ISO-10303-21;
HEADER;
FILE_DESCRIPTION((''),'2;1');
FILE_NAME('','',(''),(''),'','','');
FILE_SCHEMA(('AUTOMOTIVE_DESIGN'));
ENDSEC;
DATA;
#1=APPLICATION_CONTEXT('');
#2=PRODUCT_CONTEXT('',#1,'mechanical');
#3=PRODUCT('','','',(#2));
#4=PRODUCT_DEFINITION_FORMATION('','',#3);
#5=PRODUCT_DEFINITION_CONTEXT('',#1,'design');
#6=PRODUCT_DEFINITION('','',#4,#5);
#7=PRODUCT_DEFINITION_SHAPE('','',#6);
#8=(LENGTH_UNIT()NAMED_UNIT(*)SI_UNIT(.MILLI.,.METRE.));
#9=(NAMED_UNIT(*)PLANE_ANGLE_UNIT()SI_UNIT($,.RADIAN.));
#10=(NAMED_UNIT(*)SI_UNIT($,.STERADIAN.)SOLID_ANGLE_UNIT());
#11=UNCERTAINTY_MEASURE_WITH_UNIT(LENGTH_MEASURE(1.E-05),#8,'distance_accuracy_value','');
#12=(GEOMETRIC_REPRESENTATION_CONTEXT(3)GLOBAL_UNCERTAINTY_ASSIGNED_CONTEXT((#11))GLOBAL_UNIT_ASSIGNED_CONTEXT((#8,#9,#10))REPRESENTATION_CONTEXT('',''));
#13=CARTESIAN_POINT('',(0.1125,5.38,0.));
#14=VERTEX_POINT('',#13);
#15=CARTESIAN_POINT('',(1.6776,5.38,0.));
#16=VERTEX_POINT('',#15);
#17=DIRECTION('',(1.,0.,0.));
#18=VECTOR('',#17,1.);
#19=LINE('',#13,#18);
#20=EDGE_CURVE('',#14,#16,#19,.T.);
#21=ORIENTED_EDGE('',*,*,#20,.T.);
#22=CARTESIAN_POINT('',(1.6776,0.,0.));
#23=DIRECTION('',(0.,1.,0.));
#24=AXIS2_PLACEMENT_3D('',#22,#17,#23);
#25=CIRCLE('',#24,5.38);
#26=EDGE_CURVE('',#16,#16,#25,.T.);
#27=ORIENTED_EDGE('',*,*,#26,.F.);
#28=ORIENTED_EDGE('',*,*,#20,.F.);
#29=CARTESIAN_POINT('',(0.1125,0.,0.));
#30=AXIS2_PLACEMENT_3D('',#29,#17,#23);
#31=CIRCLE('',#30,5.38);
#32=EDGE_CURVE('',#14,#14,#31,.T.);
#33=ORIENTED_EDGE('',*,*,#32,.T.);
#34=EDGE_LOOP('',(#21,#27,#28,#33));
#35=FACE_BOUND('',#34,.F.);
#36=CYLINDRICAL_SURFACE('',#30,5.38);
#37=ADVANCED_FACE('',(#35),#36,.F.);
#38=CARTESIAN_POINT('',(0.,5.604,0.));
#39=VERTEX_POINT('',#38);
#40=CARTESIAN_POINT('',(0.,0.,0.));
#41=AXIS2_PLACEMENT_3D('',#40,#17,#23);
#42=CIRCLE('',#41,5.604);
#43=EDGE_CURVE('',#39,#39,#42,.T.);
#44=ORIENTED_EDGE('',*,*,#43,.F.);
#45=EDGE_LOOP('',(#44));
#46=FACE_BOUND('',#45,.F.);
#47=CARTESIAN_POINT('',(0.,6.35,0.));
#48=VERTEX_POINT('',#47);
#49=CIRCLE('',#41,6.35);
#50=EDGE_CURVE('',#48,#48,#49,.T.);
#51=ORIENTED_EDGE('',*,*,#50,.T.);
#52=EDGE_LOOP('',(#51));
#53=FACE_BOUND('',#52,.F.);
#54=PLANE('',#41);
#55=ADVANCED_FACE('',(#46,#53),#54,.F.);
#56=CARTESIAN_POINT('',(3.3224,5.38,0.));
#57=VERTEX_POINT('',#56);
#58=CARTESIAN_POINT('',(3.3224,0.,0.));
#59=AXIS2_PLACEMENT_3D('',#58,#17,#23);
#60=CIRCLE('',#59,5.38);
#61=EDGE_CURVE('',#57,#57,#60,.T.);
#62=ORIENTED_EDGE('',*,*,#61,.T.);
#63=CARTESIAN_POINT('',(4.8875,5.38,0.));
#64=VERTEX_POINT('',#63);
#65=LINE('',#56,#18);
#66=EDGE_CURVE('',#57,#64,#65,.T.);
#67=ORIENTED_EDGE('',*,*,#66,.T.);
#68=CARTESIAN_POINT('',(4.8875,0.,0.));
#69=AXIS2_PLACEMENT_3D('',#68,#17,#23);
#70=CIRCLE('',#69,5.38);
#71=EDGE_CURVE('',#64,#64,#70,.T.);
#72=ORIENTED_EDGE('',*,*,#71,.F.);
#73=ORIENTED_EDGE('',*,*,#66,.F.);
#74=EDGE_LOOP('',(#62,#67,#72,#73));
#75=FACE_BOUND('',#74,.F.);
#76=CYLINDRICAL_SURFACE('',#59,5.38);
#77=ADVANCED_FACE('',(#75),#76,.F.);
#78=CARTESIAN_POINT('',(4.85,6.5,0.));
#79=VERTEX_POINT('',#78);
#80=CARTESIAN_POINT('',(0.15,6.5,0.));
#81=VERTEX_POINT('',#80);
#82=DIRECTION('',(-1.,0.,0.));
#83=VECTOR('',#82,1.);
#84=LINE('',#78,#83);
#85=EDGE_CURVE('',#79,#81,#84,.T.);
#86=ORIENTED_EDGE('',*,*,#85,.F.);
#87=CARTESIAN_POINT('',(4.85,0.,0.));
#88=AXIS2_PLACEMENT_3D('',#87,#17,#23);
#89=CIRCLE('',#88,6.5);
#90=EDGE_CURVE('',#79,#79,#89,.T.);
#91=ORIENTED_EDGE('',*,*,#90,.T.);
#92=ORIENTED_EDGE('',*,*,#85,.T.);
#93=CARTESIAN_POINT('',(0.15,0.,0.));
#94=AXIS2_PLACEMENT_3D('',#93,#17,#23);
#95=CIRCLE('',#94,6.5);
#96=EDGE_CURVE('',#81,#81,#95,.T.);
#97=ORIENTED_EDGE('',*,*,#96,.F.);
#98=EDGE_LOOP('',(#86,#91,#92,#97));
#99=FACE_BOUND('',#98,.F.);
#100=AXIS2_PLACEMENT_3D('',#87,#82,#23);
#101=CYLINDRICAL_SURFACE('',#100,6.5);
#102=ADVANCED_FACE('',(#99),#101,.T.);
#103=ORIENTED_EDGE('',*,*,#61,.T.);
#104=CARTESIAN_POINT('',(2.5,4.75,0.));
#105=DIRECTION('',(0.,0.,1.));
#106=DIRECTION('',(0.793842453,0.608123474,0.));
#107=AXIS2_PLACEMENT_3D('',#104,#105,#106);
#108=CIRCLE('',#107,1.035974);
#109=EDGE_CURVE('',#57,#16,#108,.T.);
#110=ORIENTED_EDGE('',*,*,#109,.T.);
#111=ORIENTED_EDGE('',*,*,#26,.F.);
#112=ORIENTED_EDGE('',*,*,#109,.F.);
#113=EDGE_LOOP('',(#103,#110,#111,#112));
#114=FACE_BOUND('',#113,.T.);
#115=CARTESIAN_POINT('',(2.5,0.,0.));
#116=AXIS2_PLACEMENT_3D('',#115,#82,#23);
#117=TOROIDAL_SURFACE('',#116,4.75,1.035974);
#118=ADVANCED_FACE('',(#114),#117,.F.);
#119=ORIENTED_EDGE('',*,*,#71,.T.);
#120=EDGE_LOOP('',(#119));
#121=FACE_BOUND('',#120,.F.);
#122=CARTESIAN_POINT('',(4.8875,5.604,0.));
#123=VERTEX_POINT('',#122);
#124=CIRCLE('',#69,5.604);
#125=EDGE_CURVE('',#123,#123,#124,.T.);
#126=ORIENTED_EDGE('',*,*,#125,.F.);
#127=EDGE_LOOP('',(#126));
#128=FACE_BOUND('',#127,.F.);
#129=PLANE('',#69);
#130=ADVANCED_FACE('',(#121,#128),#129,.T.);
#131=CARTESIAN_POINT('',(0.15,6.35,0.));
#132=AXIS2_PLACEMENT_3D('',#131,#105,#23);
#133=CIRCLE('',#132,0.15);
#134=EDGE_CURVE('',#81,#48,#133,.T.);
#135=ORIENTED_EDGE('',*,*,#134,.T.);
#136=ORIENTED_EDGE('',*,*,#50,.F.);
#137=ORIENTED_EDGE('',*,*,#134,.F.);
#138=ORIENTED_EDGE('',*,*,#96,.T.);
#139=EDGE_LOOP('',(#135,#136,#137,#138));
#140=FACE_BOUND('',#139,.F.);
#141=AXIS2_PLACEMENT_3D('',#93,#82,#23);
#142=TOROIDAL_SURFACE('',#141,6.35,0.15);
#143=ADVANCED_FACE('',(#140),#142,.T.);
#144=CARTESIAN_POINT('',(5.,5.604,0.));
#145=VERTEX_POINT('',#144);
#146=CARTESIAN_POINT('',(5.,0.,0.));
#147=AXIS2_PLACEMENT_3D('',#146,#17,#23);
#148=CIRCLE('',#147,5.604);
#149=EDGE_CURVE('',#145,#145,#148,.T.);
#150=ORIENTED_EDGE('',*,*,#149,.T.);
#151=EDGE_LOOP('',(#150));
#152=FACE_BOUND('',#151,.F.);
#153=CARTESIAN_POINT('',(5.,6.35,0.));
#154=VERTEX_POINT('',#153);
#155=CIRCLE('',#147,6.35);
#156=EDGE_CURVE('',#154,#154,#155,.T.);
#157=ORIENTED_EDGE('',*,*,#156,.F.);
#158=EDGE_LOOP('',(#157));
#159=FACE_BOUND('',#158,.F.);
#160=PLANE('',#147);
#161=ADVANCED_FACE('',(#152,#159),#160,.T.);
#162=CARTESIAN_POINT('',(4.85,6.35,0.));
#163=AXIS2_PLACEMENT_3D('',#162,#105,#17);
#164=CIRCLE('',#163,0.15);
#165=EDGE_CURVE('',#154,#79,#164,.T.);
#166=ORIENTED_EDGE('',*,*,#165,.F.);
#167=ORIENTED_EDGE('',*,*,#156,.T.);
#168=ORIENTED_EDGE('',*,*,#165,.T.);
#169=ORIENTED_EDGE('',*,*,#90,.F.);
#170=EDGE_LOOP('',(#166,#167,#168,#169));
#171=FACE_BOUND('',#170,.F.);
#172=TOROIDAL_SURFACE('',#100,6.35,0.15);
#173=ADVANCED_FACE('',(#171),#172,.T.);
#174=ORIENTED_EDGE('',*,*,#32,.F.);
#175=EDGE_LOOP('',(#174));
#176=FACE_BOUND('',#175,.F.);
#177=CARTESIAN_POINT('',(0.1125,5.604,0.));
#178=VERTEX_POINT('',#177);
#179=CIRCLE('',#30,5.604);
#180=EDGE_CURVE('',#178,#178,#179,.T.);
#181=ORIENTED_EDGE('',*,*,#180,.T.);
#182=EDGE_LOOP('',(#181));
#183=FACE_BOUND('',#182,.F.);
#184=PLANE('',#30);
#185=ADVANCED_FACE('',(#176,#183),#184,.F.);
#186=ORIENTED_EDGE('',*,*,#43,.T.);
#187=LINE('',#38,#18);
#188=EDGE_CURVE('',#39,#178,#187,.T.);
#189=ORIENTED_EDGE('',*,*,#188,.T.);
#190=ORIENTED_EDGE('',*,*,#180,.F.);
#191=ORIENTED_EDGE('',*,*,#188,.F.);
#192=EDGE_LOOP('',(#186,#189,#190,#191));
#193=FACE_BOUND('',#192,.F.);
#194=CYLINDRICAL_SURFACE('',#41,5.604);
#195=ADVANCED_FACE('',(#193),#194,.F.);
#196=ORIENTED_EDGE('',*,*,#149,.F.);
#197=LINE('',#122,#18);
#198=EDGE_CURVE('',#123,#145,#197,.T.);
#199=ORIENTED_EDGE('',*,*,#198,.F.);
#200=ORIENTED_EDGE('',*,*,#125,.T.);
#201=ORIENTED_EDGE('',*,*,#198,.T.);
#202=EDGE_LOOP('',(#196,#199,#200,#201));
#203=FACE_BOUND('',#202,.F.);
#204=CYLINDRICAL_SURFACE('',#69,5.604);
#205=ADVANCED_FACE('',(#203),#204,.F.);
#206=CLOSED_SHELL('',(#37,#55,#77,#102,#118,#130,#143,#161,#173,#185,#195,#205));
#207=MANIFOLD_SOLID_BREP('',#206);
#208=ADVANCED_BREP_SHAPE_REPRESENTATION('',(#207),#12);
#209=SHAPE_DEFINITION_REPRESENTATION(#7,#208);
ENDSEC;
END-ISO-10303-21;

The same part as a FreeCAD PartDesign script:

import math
import FreeCAD as App
import Part
import Sketcher
from FreeCAD import Vector
Q = App.Units.Quantity

doc = App.newDocument("Part")
body = doc.addObject("PartDesign::Body", "Body")

# Sketch on XY plane
sketch1 = body.newObject("Sketcher::SketchObject", "Sketch")
sketch1.AttachmentSupport = (doc.getObject("XY_Plane"), [""])
sketch1.MapMode = "FlatFace"
sketch1.addGeometry(Part.LineSegment(Vector(0, 6.35, 0), Vector(0, 5.6, 0)), False)
sketch1.addGeometry(Part.LineSegment(Vector(0, 5.6, 0), Vector(0.11, 5.6, 0)), False)
sketch1.addGeometry(Part.LineSegment(Vector(0.11, 5.6, 0), Vector(0.11, 5.38, 0)), False)
sketch1.addGeometry(Part.LineSegment(Vector(0.11, 5.38, 0), Vector(1.68, 5.38, 0)), False)
sketch1.addGeometry(Part.ArcOfCircle(Part.Circle(Vector(2.5, 4.75, 0), Vector(0, 0, 1), 1.04), math.radians(37), math.radians(143)), False)
sketch1.addGeometry(Part.LineSegment(Vector(3.32, 5.38, 0), Vector(4.89, 5.38, 0)), False)
sketch1.addGeometry(Part.LineSegment(Vector(4.89, 5.38, 0), Vector(4.89, 5.6, 0)), False)
sketch1.addGeometry(Part.LineSegment(Vector(4.89, 5.6, 0), Vector(5, 5.6, 0)), False)
sketch1.addGeometry(Part.LineSegment(Vector(5, 5.6, 0), Vector(5, 6.35, 0)), False)
sketch1.addGeometry(Part.ArcOfCircle(Part.Circle(Vector(4.85, 6.35, 0), Vector(0, 0, 1), 0.15), math.radians(0), math.radians(90)), False)
sketch1.addGeometry(Part.LineSegment(Vector(4.85, 6.5, 0), Vector(0.15, 6.5, 0)), False)
sketch1.addGeometry(Part.ArcOfCircle(Part.Circle(Vector(0.15, 6.35, 0), Vector(0, 0, 1), 0.15), math.radians(90), math.radians(180)), False)
sketch1.addConstraint(Sketcher.Constraint("Coincident", 0, 2, 1, 1))
sketch1.addConstraint(Sketcher.Constraint("Coincident", 1, 2, 2, 1))
sketch1.addConstraint(Sketcher.Constraint("Coincident", 2, 2, 3, 1))
sketch1.addConstraint(Sketcher.Constraint("Coincident", 3, 2, 4, 2))
sketch1.addConstraint(Sketcher.Constraint("Coincident", 4, 1, 5, 1))
sketch1.addConstraint(Sketcher.Constraint("Coincident", 5, 2, 6, 1))
sketch1.addConstraint(Sketcher.Constraint("Coincident", 6, 2, 7, 1))
sketch1.addConstraint(Sketcher.Constraint("Coincident", 7, 2, 8, 1))
sketch1.addConstraint(Sketcher.Constraint("Tangent", 8, 2, 9, 1))
sketch1.addConstraint(Sketcher.Constraint("Tangent", 9, 2, 10, 1))
sketch1.addConstraint(Sketcher.Constraint("Tangent", 10, 2, 11, 1))
sketch1.addConstraint(Sketcher.Constraint("Tangent", 11, 2, 0, 1))
sketch1.addConstraint(Sketcher.Constraint("Vertical", 0))
sketch1.addConstraint(Sketcher.Constraint("Horizontal", 1))
sketch1.addConstraint(Sketcher.Constraint("Vertical", 2))
sketch1.addConstraint(Sketcher.Constraint("Horizontal", 3))
sketch1.addConstraint(Sketcher.Constraint("Horizontal", 5))
sketch1.addConstraint(Sketcher.Constraint("Vertical", 6))
sketch1.addConstraint(Sketcher.Constraint("Horizontal", 7))
sketch1.addConstraint(Sketcher.Constraint("Vertical", 8))
sketch1.addConstraint(Sketcher.Constraint("Horizontal", 10))
sketch1.addConstraint(Sketcher.Constraint("Equal", 9, 11))
sketch1.addConstraint(Sketcher.Constraint("PointOnObject", 0, 2, -2))
sketch1.addConstraint(Sketcher.Constraint("Horizontal", 3, 2, 4, 1))
sketch1.addConstraint(Sketcher.Constraint("Horizontal", 1, 2, 6, 2))
sketch1.addConstraint(Sketcher.Constraint("Equal", 3, 5))
sketch1.addConstraint(Sketcher.Constraint("Equal", 1, 7))
sketch1.addConstraint(Sketcher.Constraint("Radius", 9, Q("0.15 mm")))
sketch1.addConstraint(Sketcher.Constraint("DistanceX", 10, 2, 10, 1, Q("4.7 mm")))
sketch1.addConstraint(Sketcher.Constraint("Radius", 4, Q("1.036 mm")))
sketch1.addConstraint(Sketcher.Constraint("DistanceY", -1, 1, 9, 2, Q("6.5 mm")))
sketch1.addConstraint(Sketcher.Constraint("DistanceY", 4, 3, 9, 3, Q("1.6 mm")))
sketch1.addConstraint(Sketcher.Constraint("DistanceX", 3, 1, 3, 2, Q("1.565 mm")))
sketch1.addConstraint(Sketcher.Constraint("DistanceY", 0, 2, 0, 1, Q("0.746 mm")))
sketch1.addConstraint(Sketcher.Constraint("DistanceY", 2, 2, 2, 1, Q("0.224 mm")))
revolution = body.newObject("PartDesign::Revolution", "Revolution")
revolution.Profile = sketch1
revolution.ReferenceAxis = (sketch1, ["H_Axis"])
revolution.Angle = 360

doc.recompute()
